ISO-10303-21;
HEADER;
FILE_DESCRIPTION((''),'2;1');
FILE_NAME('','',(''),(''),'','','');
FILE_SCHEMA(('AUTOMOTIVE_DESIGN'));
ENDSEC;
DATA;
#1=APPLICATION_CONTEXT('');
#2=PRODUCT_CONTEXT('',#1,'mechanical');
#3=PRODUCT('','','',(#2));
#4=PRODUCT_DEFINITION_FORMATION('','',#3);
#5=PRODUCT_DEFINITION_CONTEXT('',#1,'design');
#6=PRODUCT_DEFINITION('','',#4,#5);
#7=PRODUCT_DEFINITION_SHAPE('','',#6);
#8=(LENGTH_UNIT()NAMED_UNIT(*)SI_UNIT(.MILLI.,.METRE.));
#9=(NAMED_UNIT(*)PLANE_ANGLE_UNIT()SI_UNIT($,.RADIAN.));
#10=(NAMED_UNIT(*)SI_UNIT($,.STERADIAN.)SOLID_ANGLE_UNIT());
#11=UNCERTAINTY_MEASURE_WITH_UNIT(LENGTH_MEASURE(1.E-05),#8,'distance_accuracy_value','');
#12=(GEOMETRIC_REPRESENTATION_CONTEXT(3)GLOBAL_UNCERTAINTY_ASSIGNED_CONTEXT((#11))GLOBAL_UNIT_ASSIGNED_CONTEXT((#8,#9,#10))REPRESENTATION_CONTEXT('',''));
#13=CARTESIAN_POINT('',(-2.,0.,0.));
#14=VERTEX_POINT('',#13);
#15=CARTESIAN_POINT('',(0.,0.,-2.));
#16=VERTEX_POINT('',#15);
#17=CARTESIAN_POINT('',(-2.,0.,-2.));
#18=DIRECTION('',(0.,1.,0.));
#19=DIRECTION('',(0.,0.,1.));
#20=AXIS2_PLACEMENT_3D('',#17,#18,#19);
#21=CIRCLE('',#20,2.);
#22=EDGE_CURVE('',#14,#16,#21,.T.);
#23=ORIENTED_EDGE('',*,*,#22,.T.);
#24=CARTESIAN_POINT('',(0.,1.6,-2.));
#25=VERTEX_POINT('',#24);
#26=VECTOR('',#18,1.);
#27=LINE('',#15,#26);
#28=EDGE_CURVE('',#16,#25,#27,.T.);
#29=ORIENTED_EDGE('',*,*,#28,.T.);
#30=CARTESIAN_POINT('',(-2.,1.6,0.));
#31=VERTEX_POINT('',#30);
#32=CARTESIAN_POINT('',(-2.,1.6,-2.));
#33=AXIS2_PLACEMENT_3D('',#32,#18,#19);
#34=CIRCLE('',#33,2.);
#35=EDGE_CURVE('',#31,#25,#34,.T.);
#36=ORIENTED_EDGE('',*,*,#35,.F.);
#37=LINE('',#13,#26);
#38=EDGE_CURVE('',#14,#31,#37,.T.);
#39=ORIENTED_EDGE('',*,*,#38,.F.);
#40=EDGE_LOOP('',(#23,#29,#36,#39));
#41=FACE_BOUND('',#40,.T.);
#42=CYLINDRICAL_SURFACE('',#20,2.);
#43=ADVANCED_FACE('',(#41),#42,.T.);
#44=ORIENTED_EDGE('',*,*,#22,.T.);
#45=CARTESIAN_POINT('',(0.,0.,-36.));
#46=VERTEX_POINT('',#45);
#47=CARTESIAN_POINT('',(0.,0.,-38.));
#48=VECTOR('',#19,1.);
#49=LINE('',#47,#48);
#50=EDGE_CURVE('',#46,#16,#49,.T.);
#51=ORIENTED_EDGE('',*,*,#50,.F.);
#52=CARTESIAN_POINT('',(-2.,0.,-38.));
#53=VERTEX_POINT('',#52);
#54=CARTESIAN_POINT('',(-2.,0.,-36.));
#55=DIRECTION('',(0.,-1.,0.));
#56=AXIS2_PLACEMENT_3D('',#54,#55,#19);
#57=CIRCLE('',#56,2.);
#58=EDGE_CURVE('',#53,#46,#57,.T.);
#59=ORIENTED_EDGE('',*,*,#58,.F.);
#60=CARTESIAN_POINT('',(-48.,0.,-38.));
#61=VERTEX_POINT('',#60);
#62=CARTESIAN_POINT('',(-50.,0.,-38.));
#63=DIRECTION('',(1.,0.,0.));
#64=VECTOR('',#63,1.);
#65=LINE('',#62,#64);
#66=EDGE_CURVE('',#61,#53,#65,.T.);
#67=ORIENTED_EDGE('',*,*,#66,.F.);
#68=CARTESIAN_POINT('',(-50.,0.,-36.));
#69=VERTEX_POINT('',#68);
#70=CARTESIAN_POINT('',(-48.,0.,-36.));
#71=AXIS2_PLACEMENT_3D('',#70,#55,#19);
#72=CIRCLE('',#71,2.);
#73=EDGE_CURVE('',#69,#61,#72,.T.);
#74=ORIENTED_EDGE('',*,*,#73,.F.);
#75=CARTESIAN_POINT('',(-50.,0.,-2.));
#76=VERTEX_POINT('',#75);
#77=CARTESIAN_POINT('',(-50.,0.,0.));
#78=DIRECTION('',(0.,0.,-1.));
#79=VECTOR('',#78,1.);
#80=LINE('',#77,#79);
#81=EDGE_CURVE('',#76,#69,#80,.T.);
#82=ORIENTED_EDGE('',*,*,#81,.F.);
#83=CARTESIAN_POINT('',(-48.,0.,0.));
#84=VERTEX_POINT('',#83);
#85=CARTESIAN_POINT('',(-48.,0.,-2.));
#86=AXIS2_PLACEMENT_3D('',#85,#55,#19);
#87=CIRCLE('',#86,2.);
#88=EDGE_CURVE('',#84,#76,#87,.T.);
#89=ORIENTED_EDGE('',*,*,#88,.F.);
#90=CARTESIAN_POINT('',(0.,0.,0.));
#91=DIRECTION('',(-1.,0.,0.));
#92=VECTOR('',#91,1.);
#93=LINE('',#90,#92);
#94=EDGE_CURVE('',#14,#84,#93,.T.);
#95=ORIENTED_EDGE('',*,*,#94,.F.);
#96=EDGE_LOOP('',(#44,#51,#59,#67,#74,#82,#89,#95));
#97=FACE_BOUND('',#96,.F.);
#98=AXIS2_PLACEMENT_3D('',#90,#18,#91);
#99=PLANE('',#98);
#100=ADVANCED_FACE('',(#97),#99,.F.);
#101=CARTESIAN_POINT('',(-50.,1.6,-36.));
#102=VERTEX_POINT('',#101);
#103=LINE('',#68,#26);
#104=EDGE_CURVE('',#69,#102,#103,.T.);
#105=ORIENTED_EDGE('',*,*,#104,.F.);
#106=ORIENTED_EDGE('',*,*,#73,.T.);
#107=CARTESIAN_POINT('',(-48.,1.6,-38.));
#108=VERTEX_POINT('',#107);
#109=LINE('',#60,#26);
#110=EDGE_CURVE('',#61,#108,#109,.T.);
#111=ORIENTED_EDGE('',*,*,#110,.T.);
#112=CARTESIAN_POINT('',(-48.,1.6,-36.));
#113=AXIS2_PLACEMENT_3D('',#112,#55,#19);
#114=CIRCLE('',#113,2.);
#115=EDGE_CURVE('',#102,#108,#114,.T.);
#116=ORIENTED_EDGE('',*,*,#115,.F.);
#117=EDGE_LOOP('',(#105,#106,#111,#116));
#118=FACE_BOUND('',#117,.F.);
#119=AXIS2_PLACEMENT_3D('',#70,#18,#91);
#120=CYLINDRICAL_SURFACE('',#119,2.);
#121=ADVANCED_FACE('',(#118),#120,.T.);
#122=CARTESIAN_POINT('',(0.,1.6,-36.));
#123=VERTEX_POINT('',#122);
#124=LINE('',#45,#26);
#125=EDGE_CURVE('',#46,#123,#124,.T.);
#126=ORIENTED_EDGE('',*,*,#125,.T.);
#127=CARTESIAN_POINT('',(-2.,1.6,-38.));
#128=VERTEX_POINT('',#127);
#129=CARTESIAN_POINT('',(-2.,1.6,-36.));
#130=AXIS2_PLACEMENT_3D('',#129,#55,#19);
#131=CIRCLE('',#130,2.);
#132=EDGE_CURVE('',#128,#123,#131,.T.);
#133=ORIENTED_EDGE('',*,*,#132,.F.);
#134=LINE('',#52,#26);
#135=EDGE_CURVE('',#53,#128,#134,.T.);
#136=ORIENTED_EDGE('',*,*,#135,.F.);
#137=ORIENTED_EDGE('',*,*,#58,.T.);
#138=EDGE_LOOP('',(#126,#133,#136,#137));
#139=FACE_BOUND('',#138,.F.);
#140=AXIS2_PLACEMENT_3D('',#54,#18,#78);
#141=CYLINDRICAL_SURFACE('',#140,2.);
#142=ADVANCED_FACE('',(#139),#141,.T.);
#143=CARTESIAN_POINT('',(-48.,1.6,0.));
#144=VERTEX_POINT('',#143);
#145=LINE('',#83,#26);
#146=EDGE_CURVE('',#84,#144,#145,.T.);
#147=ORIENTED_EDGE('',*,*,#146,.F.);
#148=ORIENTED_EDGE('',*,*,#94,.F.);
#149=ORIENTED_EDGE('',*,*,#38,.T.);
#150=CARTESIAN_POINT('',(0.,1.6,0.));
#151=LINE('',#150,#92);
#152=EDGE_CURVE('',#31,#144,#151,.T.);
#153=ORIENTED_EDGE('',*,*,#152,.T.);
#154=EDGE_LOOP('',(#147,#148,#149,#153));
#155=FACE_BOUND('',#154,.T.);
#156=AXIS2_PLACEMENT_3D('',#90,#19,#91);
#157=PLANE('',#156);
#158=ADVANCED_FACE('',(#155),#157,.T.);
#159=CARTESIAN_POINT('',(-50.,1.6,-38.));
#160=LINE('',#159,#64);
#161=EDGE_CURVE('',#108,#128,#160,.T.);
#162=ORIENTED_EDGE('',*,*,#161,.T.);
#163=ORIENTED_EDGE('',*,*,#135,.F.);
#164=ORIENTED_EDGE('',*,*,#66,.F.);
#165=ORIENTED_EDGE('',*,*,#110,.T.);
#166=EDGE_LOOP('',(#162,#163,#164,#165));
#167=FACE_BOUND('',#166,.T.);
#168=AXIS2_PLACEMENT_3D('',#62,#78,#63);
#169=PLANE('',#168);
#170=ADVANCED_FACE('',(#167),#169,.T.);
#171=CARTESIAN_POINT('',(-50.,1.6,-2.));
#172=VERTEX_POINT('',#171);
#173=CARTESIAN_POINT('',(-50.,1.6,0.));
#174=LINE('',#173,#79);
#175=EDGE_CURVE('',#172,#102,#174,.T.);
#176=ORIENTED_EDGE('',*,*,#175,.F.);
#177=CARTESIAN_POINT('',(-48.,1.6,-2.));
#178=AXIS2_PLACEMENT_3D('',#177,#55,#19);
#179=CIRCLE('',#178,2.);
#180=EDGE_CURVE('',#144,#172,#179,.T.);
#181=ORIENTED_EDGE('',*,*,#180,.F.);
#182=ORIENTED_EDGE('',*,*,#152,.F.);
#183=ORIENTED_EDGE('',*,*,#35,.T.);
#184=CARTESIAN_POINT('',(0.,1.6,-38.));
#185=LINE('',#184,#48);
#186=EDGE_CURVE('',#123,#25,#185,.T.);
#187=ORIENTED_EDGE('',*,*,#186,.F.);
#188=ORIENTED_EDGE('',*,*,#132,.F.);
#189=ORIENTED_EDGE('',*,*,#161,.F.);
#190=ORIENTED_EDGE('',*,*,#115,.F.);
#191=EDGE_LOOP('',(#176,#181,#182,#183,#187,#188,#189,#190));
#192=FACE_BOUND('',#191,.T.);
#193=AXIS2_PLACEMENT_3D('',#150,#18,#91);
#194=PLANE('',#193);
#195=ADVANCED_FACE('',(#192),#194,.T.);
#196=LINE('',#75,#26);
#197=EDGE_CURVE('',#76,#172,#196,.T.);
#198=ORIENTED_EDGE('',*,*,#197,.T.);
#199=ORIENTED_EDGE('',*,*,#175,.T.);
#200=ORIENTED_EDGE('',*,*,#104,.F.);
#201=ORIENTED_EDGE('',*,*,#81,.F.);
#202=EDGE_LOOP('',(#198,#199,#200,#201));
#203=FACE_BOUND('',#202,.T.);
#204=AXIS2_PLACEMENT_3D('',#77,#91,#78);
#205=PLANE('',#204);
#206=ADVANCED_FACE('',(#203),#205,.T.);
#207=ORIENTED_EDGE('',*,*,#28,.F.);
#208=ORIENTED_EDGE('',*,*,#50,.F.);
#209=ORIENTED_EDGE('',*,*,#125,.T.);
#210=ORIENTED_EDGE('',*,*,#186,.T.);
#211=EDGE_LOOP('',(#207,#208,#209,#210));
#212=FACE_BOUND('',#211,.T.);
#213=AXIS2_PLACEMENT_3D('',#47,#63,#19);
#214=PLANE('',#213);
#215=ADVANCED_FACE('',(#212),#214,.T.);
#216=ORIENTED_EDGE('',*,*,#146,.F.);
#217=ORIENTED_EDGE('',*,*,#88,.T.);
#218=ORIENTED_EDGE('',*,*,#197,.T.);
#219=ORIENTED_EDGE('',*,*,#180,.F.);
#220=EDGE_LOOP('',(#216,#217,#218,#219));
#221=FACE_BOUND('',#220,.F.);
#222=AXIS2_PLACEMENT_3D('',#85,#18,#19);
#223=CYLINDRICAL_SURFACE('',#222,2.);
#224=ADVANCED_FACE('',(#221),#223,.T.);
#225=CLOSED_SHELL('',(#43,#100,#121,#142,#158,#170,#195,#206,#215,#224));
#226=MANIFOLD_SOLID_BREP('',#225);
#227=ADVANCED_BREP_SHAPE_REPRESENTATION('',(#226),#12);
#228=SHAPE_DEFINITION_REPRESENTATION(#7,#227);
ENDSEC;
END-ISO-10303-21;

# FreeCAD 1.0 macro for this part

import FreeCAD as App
import Part
import Sketcher
from FreeCAD import Vector
Q = App.Units.Quantity


def edges_at(feature, points):
    """Names of the edges that pass closest to the given points."""
    edges = feature.Shape.Edges
    near = lambda p: min(range(len(edges)), key=lambda i: edges[i].distToShape(Part.Vertex(*p))[0])
    return sorted({f"Edge{near(p) + 1}" for p in points})


def add_polygon(sketch, points):
    """Adds a closed chain of lines whose ends are joined by coincident constraints."""
    first, n = sketch.GeometryCount, len(points)
    for a, b in zip(points, points[1:] + points[:1]):
        sketch.addGeometry(Part.LineSegment(App.Vector(*a, 0), App.Vector(*b, 0)), False)
    for i in range(n):
        sketch.addConstraint(Sketcher.Constraint("Coincident", first + i, 2, first + (i + 1) % n, 1))

doc = App.newDocument("Part")
body = doc.addObject("PartDesign::Body", "Body")

sketch1 = body.newObject("Sketcher::SketchObject", "Sketch")
sketch1.AttachmentSupport = (doc.getObject("XZ_Plane"), [""])
sketch1.MapMode = "FlatFace"
add_polygon(sketch1, [(-50, 0), (0, 0), (0, -38), (-50, -38)])
sketch1.addConstraint([
    Sketcher.Constraint("Horizontal", 0),
    Sketcher.Constraint("Vertical", 1),
    Sketcher.Constraint("Horizontal", 2),
    Sketcher.Constraint("Vertical", 3),
    Sketcher.Constraint("Coincident", 0, 2, -1, 1),
    Sketcher.Constraint("DistanceX", 0, 1, 0, 2, Q("50 mm")),
    Sketcher.Constraint("DistanceY", 1, 2, 1, 1, Q("38 mm")),
])
pad1 = body.newObject("PartDesign::Pad", "Pad")
pad1.Profile = sketch1
pad1.Length = 1.6
pad1.Reversed = True
doc.recompute()

fillet = body.newObject("PartDesign::Fillet", "Fillet")
fillet.Base = (pad1, edges_at(pad1, [
    (0, 0.8, 0),
    (0, 0.8, -38),
    (-50, 0.8, -38),
    (-50, 0.8, 0),
]))
fillet.Radius = 2

doc.recompute()
